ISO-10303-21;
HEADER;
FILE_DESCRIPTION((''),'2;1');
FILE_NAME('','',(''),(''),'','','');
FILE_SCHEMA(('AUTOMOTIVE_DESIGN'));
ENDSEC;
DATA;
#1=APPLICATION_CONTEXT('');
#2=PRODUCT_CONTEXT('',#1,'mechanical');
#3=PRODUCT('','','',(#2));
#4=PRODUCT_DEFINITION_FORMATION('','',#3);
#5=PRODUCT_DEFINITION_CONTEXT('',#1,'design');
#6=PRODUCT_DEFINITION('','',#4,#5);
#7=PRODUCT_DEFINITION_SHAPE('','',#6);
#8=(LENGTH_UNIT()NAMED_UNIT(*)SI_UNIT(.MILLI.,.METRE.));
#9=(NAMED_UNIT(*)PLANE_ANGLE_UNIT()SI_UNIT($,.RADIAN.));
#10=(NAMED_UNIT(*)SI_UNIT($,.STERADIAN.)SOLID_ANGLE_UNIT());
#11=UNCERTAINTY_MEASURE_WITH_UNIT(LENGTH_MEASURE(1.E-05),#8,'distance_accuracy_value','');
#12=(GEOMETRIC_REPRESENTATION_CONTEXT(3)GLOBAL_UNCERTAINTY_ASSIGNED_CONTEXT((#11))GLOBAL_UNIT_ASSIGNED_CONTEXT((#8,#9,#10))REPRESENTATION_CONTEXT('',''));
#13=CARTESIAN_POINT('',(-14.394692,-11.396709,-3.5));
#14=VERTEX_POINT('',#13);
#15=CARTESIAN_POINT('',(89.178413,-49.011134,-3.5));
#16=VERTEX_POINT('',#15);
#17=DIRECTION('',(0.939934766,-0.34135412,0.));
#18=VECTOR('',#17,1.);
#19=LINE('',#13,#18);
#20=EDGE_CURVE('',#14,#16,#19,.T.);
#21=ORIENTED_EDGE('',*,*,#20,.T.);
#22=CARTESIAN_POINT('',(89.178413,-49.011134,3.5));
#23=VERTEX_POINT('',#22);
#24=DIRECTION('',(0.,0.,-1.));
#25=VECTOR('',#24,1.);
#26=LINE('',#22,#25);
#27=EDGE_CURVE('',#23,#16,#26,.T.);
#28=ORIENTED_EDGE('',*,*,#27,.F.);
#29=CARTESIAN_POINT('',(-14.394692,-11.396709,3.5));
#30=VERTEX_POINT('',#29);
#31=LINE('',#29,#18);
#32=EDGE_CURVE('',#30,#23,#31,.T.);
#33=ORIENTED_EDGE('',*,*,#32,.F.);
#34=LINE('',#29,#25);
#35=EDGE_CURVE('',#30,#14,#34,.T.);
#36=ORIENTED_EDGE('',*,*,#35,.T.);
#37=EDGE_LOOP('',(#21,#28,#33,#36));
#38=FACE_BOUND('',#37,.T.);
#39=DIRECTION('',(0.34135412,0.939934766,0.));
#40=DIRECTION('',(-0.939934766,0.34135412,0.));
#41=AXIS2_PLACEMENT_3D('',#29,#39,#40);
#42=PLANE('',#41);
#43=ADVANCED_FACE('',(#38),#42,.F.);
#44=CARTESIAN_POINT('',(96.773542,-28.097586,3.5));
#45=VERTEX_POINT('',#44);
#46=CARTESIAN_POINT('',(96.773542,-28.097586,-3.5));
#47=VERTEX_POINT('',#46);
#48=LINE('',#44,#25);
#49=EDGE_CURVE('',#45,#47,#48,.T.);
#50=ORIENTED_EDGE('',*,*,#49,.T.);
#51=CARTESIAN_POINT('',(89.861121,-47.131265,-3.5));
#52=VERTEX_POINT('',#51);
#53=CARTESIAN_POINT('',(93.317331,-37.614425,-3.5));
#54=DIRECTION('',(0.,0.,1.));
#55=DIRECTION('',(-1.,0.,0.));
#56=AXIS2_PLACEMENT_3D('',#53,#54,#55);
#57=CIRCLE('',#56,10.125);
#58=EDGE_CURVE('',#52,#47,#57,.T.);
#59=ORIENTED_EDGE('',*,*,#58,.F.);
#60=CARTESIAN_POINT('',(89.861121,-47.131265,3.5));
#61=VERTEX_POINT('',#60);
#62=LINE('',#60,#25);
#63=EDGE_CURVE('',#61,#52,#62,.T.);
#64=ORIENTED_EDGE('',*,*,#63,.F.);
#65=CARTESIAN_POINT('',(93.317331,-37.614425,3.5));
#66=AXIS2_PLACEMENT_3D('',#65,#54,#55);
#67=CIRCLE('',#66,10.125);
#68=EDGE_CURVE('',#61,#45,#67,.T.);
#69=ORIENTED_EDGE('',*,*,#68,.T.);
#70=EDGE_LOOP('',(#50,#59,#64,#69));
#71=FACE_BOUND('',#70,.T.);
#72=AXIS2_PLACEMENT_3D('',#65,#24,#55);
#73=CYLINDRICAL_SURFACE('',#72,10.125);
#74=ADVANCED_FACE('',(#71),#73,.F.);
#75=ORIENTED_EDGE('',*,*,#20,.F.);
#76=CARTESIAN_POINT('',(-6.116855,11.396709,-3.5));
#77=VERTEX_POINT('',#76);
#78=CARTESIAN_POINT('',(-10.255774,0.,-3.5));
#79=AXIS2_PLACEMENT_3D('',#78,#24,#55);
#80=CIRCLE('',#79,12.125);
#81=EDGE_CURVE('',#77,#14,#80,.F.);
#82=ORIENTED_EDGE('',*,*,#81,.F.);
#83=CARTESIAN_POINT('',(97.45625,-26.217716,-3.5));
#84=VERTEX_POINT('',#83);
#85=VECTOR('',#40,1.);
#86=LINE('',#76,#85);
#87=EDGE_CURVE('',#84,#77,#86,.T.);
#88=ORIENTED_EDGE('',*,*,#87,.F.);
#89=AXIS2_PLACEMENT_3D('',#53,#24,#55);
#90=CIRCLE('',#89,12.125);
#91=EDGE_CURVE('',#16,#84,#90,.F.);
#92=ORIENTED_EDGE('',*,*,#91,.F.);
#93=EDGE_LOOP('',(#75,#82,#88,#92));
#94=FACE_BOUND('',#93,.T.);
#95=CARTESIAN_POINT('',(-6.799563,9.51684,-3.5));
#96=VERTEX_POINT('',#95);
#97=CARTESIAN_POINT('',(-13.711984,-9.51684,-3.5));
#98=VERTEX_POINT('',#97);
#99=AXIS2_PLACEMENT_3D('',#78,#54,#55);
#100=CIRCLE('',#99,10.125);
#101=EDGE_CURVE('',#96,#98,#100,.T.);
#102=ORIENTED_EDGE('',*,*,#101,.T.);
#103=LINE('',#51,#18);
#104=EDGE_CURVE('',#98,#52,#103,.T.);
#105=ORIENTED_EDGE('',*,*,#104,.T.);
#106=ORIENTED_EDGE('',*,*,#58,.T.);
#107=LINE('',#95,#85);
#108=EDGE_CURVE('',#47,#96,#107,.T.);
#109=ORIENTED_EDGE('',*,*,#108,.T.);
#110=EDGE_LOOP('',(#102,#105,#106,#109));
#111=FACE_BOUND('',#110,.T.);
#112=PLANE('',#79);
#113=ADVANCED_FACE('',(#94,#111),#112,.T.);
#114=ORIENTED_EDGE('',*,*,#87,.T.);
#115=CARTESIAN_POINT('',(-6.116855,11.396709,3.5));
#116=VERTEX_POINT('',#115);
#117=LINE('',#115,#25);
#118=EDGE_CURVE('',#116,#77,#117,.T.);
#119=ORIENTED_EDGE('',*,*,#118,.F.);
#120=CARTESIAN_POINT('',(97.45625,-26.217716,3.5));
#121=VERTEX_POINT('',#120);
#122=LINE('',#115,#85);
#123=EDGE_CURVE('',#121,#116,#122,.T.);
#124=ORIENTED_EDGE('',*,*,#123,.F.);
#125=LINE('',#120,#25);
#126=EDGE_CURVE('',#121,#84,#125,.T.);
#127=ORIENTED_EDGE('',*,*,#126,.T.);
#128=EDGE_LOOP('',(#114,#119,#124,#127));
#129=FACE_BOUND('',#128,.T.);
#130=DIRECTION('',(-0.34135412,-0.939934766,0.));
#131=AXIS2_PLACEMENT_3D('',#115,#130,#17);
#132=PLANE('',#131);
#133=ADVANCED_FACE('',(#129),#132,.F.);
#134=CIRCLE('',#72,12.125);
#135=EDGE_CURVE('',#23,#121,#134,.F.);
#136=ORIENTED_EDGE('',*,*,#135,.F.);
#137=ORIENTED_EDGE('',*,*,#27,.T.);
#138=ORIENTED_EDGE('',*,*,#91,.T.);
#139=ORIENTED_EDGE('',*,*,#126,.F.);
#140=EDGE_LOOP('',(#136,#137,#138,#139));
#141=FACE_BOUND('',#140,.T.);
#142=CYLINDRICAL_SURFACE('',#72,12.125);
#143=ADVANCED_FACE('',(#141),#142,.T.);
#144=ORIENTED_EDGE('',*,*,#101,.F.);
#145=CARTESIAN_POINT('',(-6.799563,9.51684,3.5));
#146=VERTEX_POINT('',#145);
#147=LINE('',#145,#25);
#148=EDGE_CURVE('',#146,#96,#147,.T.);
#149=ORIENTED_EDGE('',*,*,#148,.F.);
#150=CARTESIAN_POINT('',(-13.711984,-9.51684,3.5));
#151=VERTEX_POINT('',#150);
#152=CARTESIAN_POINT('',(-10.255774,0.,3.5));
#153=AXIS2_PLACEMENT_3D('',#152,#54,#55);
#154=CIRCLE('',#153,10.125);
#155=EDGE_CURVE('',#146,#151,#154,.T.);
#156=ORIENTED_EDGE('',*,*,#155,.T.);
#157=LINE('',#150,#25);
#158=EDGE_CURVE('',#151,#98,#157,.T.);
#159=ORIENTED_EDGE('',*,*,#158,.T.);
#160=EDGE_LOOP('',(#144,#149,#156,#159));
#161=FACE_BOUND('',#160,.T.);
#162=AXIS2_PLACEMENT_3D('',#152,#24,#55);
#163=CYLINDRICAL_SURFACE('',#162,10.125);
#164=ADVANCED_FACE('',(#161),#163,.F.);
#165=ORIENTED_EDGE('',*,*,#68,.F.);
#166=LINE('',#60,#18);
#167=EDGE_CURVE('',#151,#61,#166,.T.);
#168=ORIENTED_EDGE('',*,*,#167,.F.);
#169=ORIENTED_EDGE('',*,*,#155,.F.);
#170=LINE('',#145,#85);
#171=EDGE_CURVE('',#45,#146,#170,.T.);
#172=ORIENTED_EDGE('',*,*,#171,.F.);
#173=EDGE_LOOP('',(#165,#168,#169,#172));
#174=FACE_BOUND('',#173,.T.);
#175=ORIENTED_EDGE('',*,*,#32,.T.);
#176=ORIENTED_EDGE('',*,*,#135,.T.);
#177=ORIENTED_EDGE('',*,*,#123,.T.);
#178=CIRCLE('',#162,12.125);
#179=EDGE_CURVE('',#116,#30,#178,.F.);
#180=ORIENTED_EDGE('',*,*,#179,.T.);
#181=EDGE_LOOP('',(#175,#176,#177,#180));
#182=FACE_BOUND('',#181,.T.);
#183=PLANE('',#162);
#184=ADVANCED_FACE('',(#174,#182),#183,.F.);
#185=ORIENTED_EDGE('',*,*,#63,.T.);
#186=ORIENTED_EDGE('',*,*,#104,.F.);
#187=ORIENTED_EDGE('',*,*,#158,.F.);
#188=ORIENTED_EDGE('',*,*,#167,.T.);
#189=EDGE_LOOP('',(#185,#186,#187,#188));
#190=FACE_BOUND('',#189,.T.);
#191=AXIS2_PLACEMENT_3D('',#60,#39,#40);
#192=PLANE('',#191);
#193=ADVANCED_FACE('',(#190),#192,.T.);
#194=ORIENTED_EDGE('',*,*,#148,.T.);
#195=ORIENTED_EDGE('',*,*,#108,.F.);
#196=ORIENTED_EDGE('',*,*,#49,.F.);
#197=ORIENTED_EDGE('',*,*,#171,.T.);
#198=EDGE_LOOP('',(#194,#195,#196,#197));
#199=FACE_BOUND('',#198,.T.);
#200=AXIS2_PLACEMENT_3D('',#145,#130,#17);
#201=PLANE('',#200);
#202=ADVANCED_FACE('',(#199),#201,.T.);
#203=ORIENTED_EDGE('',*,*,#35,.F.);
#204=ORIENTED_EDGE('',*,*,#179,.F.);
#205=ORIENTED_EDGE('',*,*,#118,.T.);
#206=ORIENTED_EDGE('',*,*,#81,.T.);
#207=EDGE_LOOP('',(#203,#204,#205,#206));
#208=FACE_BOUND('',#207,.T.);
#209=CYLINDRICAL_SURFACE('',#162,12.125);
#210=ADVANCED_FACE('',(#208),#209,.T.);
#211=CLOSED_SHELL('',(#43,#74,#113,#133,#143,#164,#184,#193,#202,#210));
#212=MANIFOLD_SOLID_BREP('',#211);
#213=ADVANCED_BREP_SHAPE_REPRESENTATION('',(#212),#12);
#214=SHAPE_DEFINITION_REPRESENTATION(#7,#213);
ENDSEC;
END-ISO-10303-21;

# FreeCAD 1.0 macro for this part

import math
import FreeCAD as App
import Part
import Sketcher
from FreeCAD import Vector

doc = App.newDocument("Part")
params = doc.addObject("Spreadsheet::Sheet", "Params")
for row, (alias, value) in enumerate([
    ("pad1_length", "7 mm"),
], start=1):
    params.set(f"A{row}", alias)
    params.set(f"B{row}", "=" + value)
    params.setAlias(f"B{row}", alias)

body = doc.addObject("PartDesign::Body", "Body")

# Sketch on XY plane
sketch1 = body.newObject("Sketcher::SketchObject", "Sketch")
sketch1.AttachmentSupport = (doc.getObject("XY_Plane"), [""])
sketch1.MapMode = "FlatFace"
sketch1.addGeometry([
    Part.LineSegment(Vector(-14.394692, -11.396709, 0), Vector(89.178413, -49.011134, 0)),  # 0
    Part.ArcOfCircle(Part.Circle(Vector(93.317331, -37.614425, 0), Vector(0, 0, 1), 12.125), math.radians(-109.959396), math.radians(70.040604)),  # 1
    Part.LineSegment(Vector(97.45625, -26.217716, 0), Vector(-6.116855, 11.396709, 0)),  # 2
    Part.ArcOfCircle(Part.Circle(Vector(-10.255774, 0, 0), Vector(0, 0, 1), 12.125), math.radians(70.040604), math.radians(250.040604)),  # 3
    Part.LineSegment(Vector(89.861121, -47.131265, 0), Vector(-13.711984, -9.51684, 0)),  # 4
    Part.ArcOfCircle(Part.Circle(Vector(-10.255774, 0, 0), Vector(0, 0, 1), 10.125), math.radians(70.040604), math.radians(250.040604)),  # 5
    Part.LineSegment(Vector(-6.799563, 9.51684, 0), Vector(96.773542, -28.097586, 0)),  # 6
    Part.ArcOfCircle(Part.Circle(Vector(93.317331, -37.614425, 0), Vector(0, 0, 1), 10.125), math.radians(-109.959396), math.radians(70.040604)),  # 7
], False)
sketch1.addConstraint([
    Sketcher.Constraint("Tangent", 0, 2, 1, 1),
    Sketcher.Constraint("Tangent", 1, 2, 2, 1),
    Sketcher.Constraint("Tangent", 2, 2, 3, 1),
    Sketcher.Constraint("Tangent", 3, 2, 0, 1),
    Sketcher.Constraint("Tangent", 4, 2, 5, 2),
    Sketcher.Constraint("Tangent", 5, 1, 6, 1),
    Sketcher.Constraint("Tangent", 6, 2, 7, 2),
    Sketcher.Constraint("Tangent", 7, 1, 4, 1),
    Sketcher.Constraint("Coincident", 5, 3, 3, 3),
    Sketcher.Constraint("Coincident", 7, 3, 1, 3),
    Sketcher.Constraint("Equal", 1, 3),
    Sketcher.Constraint("Equal", 5, 7),
    Sketcher.Constraint("PointOnObject", 3, 3, -1),
    Sketcher.Constraint("Radius", 1, 12.125),
    Sketcher.Constraint("Radius", 5, 10.125),
    Sketcher.Constraint("Distance", 0, 110.191801),
    Sketcher.Constraint("DistanceX", -1, 1, 1, 3, 93.317331),
    Sketcher.Constraint("DistanceX", -1, 1, 1, 2, 97.45625),
])
pad1 = body.newObject("PartDesign::Pad", "Pad")
pad1.Profile = sketch1
pad1.setExpression("Length", "Params.pad1_length")
pad1.Midplane = True

doc.recompute()
